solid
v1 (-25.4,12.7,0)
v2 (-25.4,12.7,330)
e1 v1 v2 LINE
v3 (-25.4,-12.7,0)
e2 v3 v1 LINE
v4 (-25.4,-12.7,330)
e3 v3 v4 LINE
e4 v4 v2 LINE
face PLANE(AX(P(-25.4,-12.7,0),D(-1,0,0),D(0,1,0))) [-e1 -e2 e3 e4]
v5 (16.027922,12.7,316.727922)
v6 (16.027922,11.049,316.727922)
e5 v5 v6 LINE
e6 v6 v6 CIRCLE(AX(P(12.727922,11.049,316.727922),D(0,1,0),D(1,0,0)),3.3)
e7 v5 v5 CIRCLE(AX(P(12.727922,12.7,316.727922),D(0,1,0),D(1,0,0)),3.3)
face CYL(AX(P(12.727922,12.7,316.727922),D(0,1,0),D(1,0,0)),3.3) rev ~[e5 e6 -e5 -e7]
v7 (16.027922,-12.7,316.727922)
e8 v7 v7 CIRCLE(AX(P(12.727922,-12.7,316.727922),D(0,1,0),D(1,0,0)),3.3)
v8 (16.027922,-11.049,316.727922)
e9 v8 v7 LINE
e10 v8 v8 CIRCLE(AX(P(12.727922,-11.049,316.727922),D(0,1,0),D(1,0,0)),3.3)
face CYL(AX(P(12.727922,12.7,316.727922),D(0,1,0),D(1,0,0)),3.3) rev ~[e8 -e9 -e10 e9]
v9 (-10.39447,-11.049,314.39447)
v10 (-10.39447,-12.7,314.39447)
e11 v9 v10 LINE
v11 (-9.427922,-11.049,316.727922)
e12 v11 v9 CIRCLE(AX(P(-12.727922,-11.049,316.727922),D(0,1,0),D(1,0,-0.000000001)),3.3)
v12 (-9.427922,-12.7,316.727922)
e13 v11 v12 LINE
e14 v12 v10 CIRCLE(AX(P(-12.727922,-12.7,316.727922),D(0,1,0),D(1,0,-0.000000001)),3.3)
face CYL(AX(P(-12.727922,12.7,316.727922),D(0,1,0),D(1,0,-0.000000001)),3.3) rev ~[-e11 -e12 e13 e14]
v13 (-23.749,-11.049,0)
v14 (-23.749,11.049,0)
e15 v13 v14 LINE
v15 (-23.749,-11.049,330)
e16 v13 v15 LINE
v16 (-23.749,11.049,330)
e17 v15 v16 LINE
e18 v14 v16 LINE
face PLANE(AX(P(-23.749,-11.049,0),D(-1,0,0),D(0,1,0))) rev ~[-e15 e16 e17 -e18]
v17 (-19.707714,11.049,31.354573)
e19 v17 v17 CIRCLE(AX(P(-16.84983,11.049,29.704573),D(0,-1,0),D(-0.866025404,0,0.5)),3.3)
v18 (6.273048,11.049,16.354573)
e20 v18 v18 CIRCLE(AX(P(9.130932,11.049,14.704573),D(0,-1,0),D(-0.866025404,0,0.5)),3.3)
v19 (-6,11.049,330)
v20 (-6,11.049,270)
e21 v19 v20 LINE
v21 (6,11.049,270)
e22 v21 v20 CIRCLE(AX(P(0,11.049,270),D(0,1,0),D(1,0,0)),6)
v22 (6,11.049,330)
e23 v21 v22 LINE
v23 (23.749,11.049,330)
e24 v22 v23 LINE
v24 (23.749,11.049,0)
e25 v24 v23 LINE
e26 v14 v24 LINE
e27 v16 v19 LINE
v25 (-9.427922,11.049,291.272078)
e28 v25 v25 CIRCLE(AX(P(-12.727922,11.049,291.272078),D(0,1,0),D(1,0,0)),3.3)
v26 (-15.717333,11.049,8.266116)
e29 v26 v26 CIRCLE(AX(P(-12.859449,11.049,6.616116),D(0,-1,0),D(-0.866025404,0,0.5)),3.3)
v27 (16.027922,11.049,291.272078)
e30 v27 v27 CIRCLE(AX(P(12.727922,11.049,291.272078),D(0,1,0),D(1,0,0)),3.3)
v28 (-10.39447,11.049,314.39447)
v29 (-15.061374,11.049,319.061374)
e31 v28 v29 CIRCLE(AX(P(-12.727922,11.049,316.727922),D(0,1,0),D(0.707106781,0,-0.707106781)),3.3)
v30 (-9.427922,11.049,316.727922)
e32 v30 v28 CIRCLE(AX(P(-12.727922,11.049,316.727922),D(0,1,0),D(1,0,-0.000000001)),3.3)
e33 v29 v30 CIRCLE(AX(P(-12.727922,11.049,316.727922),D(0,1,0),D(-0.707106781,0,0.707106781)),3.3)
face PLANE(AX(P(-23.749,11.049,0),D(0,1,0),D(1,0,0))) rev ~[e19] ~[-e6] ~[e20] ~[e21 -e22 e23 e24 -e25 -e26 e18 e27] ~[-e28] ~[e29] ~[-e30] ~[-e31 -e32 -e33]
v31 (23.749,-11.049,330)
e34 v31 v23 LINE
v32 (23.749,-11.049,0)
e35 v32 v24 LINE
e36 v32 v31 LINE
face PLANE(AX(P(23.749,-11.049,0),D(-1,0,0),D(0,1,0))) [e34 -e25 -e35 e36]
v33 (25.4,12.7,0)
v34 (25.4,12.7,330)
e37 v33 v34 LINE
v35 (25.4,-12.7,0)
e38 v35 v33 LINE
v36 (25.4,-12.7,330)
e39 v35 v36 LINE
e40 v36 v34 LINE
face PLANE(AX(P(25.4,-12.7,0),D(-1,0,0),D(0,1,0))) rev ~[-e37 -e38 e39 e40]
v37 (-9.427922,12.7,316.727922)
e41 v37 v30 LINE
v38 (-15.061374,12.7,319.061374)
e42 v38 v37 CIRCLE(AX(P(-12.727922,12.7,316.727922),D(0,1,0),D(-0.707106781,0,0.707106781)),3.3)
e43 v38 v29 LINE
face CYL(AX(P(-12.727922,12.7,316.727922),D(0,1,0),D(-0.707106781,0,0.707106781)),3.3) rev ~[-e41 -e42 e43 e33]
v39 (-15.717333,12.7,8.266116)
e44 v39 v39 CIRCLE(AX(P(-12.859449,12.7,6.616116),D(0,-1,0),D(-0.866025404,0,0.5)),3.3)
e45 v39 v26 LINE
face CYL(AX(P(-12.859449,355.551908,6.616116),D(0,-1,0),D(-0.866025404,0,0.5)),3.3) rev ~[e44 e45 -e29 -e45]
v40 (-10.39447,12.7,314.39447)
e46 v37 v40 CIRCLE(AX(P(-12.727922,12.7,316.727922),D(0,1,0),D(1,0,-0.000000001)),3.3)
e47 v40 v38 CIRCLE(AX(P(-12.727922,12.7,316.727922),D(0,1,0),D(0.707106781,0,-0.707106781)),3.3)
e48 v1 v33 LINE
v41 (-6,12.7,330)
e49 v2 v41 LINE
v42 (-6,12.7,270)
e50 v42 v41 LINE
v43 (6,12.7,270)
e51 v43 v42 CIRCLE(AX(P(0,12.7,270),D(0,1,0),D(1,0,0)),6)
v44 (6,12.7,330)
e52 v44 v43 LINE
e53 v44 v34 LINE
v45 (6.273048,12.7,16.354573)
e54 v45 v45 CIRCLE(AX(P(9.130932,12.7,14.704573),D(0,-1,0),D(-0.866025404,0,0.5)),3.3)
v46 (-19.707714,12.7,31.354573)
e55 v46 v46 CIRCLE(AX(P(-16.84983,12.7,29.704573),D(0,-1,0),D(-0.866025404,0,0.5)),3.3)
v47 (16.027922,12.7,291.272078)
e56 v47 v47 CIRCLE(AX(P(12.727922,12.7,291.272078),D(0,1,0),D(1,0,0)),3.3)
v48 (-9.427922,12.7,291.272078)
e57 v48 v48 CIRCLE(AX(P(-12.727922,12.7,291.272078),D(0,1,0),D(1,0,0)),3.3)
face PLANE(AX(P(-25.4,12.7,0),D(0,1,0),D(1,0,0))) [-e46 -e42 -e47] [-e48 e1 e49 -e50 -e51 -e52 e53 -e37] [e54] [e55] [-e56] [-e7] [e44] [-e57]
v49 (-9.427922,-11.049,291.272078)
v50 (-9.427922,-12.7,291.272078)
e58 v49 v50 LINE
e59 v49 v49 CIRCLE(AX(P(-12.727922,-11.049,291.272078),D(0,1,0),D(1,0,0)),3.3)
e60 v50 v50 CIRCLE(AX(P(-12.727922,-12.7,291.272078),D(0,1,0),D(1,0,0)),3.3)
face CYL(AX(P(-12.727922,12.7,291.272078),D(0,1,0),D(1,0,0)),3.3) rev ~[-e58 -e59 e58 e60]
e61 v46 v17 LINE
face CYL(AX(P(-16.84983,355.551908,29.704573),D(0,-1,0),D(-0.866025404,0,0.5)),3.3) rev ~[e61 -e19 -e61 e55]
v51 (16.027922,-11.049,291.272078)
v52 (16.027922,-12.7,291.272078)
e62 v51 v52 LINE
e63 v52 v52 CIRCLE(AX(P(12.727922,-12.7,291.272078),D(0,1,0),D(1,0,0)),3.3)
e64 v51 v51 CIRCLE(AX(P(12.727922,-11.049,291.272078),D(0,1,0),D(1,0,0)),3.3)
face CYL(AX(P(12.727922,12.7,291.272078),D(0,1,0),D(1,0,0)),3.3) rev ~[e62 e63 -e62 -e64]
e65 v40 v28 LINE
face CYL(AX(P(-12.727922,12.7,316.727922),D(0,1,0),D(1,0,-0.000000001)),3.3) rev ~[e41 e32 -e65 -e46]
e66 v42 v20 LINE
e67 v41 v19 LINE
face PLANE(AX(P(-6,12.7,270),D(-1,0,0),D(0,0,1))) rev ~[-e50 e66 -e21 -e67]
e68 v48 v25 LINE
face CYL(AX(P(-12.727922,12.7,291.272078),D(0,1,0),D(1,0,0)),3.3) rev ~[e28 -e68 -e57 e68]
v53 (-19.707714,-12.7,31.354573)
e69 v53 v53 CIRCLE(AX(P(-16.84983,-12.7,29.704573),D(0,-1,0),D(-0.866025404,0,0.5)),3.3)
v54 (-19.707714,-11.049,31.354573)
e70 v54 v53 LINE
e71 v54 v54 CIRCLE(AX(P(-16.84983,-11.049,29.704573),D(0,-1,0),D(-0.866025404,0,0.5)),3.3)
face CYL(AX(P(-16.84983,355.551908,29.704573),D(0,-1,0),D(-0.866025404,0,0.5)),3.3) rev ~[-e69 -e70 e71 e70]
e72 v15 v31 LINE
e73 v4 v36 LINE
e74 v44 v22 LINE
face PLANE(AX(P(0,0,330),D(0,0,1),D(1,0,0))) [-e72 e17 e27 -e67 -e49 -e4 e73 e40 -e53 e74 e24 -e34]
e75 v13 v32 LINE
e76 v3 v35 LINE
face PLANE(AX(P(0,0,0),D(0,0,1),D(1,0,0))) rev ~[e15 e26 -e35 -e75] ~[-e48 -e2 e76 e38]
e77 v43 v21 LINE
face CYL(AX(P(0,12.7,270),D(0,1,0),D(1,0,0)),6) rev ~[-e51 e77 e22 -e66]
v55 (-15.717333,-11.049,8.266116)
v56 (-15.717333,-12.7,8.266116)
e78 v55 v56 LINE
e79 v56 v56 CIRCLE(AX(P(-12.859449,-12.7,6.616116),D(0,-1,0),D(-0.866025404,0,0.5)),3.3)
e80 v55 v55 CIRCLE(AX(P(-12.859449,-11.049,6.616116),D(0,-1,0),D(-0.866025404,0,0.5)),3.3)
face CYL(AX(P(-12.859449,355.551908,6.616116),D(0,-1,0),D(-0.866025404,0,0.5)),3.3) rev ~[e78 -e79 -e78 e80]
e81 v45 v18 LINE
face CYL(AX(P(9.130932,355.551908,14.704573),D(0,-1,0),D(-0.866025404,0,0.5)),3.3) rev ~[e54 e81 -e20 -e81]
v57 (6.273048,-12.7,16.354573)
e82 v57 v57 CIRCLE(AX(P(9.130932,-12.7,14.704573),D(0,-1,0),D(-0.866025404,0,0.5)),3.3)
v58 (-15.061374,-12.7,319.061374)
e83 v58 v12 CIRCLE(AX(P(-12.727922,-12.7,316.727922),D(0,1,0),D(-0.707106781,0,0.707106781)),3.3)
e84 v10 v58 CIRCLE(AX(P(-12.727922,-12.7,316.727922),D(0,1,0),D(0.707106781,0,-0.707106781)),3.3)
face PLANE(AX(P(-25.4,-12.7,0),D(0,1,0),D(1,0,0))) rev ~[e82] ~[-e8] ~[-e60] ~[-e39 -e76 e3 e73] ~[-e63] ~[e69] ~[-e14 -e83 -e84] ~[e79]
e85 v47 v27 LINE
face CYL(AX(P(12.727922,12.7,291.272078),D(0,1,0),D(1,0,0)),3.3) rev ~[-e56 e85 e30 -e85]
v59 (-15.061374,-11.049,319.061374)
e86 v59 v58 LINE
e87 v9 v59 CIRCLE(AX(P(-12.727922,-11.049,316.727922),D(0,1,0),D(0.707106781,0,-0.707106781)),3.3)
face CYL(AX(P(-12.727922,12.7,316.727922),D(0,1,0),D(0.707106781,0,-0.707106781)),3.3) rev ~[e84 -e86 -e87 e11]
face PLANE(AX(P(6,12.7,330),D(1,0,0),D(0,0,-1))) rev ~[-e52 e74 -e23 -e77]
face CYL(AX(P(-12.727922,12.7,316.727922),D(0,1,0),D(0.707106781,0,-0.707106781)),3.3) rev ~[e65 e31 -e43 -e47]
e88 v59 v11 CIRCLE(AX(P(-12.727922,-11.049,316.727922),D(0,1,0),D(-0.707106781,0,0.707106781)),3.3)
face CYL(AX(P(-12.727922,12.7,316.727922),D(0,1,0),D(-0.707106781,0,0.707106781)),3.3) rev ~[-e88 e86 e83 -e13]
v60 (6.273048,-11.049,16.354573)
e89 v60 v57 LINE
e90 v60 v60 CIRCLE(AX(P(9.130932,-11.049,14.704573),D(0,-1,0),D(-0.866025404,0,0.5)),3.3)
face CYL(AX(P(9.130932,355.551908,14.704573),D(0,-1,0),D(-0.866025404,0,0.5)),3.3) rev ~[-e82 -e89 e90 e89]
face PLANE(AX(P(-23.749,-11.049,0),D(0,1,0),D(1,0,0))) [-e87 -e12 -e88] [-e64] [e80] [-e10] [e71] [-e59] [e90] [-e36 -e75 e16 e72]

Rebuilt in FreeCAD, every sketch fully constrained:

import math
import FreeCAD as App
import Part
import Sketcher

V = App.Vector

doc = App.newDocument("Part")
body = doc.addObject("PartDesign::Body", "Body")

# Sketch on XY plane
sketch1 = doc.addObject("Sketcher::SketchObject", "Sketch")
body.addObject(sketch1)
sketch1.AttachmentSupport = (doc.XY_Plane, [""])
sketch1.MapMode = "FlatFace"
sketch1.addGeometry([
    Part.LineSegment(V(-25.4, 12.7, 0), V(-25.4, -12.7, 0)),  # 0
    Part.LineSegment(V(-25.4, -12.7, 0), V(25.4, -12.7, 0)),  # 1
    Part.LineSegment(V(25.4, -12.7, 0), V(25.4, 12.7, 0)),  # 2
    Part.LineSegment(V(25.4, 12.7, 0), V(-25.4, 12.7, 0)),  # 3
    Part.LineSegment(V(23.749, -11.049, 0), V(-23.749, -11.049, 0)),  # 4
    Part.LineSegment(V(-23.749, -11.049, 0), V(-23.749, 11.049, 0)),  # 5
    Part.LineSegment(V(-23.749, 11.049, 0), V(23.749, 11.049, 0)),  # 6
    Part.LineSegment(V(23.749, 11.049, 0), V(23.749, -11.049, 0)),  # 7
], False)
sketch1.addConstraint([
    Sketcher.Constraint("Coincident", 0, 2, 1, 1),
    Sketcher.Constraint("Coincident", 1, 2, 2, 1),
    Sketcher.Constraint("Coincident", 2, 2, 3, 1),
    Sketcher.Constraint("Coincident", 3, 2, 0, 1),
    Sketcher.Constraint("Coincident", 4, 2, 5, 1),
    Sketcher.Constraint("Coincident", 5, 2, 6, 1),
    Sketcher.Constraint("Coincident", 6, 2, 7, 1),
    Sketcher.Constraint("Coincident", 7, 2, 4, 1),
    Sketcher.Constraint("Vertical", 0),
    Sketcher.Constraint("Horizontal", 1),
    Sketcher.Constraint("Vertical", 2),
    Sketcher.Constraint("Horizontal", 3),
    Sketcher.Constraint("Horizontal", 4),
    Sketcher.Constraint("Vertical", 5),
    Sketcher.Constraint("Horizontal", 6),
    Sketcher.Constraint("Vertical", 7),
    Sketcher.Constraint("Symmetric", 0, 2, 2, 2, -1, 1),
    Sketcher.Constraint("Symmetric", 4, 2, 6, 2, -1, 1),
    Sketcher.Constraint("DistanceX", 1, 1, 1, 2, 50.8),
    Sketcher.Constraint("DistanceY", 0, 2, 0, 1, 25.4),
    Sketcher.Constraint("DistanceX", 4, 2, 4, 1, 47.498),
    Sketcher.Constraint("DistanceY", 5, 1, 5, 2, 22.098),
])
pad1 = doc.addObject("PartDesign::Pad", "Pad")
body.addObject(pad1)
pad1.Profile = sketch1
pad1.Length = 330

# Sketch on XZ plane
sketch2 = doc.addObject("Sketcher::SketchObject", "Sketch001")
body.addObject(sketch2)
sketch2.AttachmentSupport = (doc.XZ_Plane, [""])
sketch2.MapMode = "FlatFace"
sketch2.AttachmentOffset = App.Placement(V(0, 0, -12.7), App.Rotation())
sketch2.addGeometry([
    Part.LineSegment(V(-6, 270, 0), V(-6, 330, 0)),
    Part.LineSegment(V(-6, 330, 0), V(6, 330, 0)),
    Part.LineSegment(V(6, 330, 0), V(6, 270, 0)),
    Part.ArcOfCircle(Part.Circle(V(0, 270, 0), V(0, 0, 1), 6), math.radians(180), math.radians(360)),
], False)
sketch2.addConstraint([
    Sketcher.Constraint("Coincident", 0, 2, 1, 1),
    Sketcher.Constraint("Coincident", 1, 2, 2, 1),
    Sketcher.Constraint("Tangent", 2, 2, 3, 2),
    Sketcher.Constraint("Tangent", 3, 1, 0, 1),
    Sketcher.Constraint("Vertical", 0),
    Sketcher.Constraint("Horizontal", 1),
    Sketcher.Constraint("Vertical", 2),
    Sketcher.Constraint("PointOnObject", 3, 3, -2),
    Sketcher.Constraint("Radius", 3, 6.0),
    Sketcher.Constraint("DistanceY", 0, 1, 0, 2, 60.0),
    Sketcher.Constraint("DistanceY", -1, 1, 3, 3, 270.0),
])
pocket1 = doc.addObject("PartDesign::Pocket", "Pocket")
body.addObject(pocket1)
pocket1.Profile = sketch2
pocket1.Type = "UpToFirst"
pocket1.Reversed = True

# Sketch on XZ plane
sketch3 = doc.addObject("Sketcher::SketchObject", "Sketch002")
body.addObject(sketch3)
sketch3.AttachmentSupport = (doc.XZ_Plane, [""])
sketch3.MapMode = "FlatFace"
sketch3.AttachmentOffset = App.Placement(V(0, 0, -12.7), App.Rotation())
sketch3.addGeometry([
    Part.ArcOfCircle(Part.Circle(V(-12.727922, 316.727922, 0), V(0, 0, 1), 3.3), math.radians(-45), math.radians(0)),  # 0
    Part.ArcOfCircle(Part.Circle(V(-12.727922, 316.727922, 0), V(0, 0, 1), 3.3), math.radians(135), math.radians(315)),  # 1
    Part.ArcOfCircle(Part.Circle(V(-12.727922, 316.727922, 0), V(0, 0, 1), 3.3), math.radians(0), math.radians(135)),  # 2
    Part.Circle(V(-12.727922, 291.272078, 0), V(0, 0, 1), 3.3),  # 3
    Part.Circle(V(12.727922, 291.272078, 0), V(0, 0, 1), 3.3),  # 4
    Part.Circle(V(12.727922, 316.727922, 0), V(0, 0, 1), 3.3),  # 5
], False)
sketch3.addConstraint([
    Sketcher.Constraint("Tangent", 0, 1, 1, 2),
    Sketcher.Constraint("Tangent", 1, 1, 2, 2),
    Sketcher.Constraint("Tangent", 2, 1, 0, 2),
    Sketcher.Constraint("Equal", 2, 3),
    Sketcher.Constraint("Equal", 3, 4),
    Sketcher.Constraint("Equal", 4, 5),
    Sketcher.Constraint("Symmetric", 3, 3, 4, 3, -2),
    Sketcher.Constraint("Symmetric", 0, 3, 5, 3, -2),
    Sketcher.Constraint("Horizontal", 5, 3, 2, 1),
    Sketcher.Constraint("Vertical", 2, 3, 3, 3),
    Sketcher.Constraint("Diameter", 3, 6.6),
    Sketcher.Constraint("DistanceX", 0, 1, -1, 1, 10.39447),
    Sketcher.Constraint("DistanceY", -1, 1, 0, 1, 314.39447),
    Sketcher.Constraint("DistanceX", 0, 1, 5, 3, 23.122392),
    Sketcher.Constraint("DistanceY", 3, 3, 0, 1, 23.122392),
    Sketcher.Constraint("DistanceX", 1, 1, -1, 1, 15.061374),
])
pocket2 = doc.addObject("PartDesign::Pocket", "Pocket001")
body.addObject(pocket2)
pocket2.Profile = sketch3
pocket2.Type = "ThroughAll"
pocket2.Reversed = True

# Sketch on XZ plane
sketch4 = doc.addObject("Sketcher::SketchObject", "Sketch003")
body.addObject(sketch4)
sketch4.AttachmentSupport = (doc.XZ_Plane, [""])
sketch4.MapMode = "FlatFace"
sketch4.AttachmentOffset = App.Placement(V(0, 0, -20.7), App.Rotation())
sketch4.addGeometry([
    Part.Circle(V(-12.859449, 6.616116, 0), V(0, 0, 1), 3.3),
    Part.Circle(V(9.130932, 14.704573, 0), V(0, 0, 1), 3.3),
    Part.Circle(V(-16.84983, 29.704573, 0), V(0, 0, 1), 3.3),
], False)
sketch4.addConstraint([
    Sketcher.Constraint("Equal", 0, 1),
    Sketcher.Constraint("Equal", 1, 2),
    Sketcher.Constraint("Diameter", 0, 6.6),
    Sketcher.Constraint("DistanceY", 1, 3, 2, 3, 15.0),
    Sketcher.Constraint("DistanceX", 0, 3, -1, 1, 12.859449),
    Sketcher.Constraint("DistanceX", 2, 3, -1, 1, 16.84983),
    Sketcher.Constraint("DistanceX", 0, 3, 1, 3, 21.990381),
    Sketcher.Constraint("DistanceY", -1, 1, 0, 3, 6.616116),
    Sketcher.Constraint("DistanceY", -1, 1, 1, 3, 14.704573),
])
doc.recompute()
hole = doc.addObject("PartDesign::Hole", "Hole")
body.addObject(hole)
hole.Profile = sketch4
hole.ThreadType = "None"
hole.Diameter = 6.6
hole.DepthType = "ThroughAll"
hole.Reversed = True

doc.recompute()
